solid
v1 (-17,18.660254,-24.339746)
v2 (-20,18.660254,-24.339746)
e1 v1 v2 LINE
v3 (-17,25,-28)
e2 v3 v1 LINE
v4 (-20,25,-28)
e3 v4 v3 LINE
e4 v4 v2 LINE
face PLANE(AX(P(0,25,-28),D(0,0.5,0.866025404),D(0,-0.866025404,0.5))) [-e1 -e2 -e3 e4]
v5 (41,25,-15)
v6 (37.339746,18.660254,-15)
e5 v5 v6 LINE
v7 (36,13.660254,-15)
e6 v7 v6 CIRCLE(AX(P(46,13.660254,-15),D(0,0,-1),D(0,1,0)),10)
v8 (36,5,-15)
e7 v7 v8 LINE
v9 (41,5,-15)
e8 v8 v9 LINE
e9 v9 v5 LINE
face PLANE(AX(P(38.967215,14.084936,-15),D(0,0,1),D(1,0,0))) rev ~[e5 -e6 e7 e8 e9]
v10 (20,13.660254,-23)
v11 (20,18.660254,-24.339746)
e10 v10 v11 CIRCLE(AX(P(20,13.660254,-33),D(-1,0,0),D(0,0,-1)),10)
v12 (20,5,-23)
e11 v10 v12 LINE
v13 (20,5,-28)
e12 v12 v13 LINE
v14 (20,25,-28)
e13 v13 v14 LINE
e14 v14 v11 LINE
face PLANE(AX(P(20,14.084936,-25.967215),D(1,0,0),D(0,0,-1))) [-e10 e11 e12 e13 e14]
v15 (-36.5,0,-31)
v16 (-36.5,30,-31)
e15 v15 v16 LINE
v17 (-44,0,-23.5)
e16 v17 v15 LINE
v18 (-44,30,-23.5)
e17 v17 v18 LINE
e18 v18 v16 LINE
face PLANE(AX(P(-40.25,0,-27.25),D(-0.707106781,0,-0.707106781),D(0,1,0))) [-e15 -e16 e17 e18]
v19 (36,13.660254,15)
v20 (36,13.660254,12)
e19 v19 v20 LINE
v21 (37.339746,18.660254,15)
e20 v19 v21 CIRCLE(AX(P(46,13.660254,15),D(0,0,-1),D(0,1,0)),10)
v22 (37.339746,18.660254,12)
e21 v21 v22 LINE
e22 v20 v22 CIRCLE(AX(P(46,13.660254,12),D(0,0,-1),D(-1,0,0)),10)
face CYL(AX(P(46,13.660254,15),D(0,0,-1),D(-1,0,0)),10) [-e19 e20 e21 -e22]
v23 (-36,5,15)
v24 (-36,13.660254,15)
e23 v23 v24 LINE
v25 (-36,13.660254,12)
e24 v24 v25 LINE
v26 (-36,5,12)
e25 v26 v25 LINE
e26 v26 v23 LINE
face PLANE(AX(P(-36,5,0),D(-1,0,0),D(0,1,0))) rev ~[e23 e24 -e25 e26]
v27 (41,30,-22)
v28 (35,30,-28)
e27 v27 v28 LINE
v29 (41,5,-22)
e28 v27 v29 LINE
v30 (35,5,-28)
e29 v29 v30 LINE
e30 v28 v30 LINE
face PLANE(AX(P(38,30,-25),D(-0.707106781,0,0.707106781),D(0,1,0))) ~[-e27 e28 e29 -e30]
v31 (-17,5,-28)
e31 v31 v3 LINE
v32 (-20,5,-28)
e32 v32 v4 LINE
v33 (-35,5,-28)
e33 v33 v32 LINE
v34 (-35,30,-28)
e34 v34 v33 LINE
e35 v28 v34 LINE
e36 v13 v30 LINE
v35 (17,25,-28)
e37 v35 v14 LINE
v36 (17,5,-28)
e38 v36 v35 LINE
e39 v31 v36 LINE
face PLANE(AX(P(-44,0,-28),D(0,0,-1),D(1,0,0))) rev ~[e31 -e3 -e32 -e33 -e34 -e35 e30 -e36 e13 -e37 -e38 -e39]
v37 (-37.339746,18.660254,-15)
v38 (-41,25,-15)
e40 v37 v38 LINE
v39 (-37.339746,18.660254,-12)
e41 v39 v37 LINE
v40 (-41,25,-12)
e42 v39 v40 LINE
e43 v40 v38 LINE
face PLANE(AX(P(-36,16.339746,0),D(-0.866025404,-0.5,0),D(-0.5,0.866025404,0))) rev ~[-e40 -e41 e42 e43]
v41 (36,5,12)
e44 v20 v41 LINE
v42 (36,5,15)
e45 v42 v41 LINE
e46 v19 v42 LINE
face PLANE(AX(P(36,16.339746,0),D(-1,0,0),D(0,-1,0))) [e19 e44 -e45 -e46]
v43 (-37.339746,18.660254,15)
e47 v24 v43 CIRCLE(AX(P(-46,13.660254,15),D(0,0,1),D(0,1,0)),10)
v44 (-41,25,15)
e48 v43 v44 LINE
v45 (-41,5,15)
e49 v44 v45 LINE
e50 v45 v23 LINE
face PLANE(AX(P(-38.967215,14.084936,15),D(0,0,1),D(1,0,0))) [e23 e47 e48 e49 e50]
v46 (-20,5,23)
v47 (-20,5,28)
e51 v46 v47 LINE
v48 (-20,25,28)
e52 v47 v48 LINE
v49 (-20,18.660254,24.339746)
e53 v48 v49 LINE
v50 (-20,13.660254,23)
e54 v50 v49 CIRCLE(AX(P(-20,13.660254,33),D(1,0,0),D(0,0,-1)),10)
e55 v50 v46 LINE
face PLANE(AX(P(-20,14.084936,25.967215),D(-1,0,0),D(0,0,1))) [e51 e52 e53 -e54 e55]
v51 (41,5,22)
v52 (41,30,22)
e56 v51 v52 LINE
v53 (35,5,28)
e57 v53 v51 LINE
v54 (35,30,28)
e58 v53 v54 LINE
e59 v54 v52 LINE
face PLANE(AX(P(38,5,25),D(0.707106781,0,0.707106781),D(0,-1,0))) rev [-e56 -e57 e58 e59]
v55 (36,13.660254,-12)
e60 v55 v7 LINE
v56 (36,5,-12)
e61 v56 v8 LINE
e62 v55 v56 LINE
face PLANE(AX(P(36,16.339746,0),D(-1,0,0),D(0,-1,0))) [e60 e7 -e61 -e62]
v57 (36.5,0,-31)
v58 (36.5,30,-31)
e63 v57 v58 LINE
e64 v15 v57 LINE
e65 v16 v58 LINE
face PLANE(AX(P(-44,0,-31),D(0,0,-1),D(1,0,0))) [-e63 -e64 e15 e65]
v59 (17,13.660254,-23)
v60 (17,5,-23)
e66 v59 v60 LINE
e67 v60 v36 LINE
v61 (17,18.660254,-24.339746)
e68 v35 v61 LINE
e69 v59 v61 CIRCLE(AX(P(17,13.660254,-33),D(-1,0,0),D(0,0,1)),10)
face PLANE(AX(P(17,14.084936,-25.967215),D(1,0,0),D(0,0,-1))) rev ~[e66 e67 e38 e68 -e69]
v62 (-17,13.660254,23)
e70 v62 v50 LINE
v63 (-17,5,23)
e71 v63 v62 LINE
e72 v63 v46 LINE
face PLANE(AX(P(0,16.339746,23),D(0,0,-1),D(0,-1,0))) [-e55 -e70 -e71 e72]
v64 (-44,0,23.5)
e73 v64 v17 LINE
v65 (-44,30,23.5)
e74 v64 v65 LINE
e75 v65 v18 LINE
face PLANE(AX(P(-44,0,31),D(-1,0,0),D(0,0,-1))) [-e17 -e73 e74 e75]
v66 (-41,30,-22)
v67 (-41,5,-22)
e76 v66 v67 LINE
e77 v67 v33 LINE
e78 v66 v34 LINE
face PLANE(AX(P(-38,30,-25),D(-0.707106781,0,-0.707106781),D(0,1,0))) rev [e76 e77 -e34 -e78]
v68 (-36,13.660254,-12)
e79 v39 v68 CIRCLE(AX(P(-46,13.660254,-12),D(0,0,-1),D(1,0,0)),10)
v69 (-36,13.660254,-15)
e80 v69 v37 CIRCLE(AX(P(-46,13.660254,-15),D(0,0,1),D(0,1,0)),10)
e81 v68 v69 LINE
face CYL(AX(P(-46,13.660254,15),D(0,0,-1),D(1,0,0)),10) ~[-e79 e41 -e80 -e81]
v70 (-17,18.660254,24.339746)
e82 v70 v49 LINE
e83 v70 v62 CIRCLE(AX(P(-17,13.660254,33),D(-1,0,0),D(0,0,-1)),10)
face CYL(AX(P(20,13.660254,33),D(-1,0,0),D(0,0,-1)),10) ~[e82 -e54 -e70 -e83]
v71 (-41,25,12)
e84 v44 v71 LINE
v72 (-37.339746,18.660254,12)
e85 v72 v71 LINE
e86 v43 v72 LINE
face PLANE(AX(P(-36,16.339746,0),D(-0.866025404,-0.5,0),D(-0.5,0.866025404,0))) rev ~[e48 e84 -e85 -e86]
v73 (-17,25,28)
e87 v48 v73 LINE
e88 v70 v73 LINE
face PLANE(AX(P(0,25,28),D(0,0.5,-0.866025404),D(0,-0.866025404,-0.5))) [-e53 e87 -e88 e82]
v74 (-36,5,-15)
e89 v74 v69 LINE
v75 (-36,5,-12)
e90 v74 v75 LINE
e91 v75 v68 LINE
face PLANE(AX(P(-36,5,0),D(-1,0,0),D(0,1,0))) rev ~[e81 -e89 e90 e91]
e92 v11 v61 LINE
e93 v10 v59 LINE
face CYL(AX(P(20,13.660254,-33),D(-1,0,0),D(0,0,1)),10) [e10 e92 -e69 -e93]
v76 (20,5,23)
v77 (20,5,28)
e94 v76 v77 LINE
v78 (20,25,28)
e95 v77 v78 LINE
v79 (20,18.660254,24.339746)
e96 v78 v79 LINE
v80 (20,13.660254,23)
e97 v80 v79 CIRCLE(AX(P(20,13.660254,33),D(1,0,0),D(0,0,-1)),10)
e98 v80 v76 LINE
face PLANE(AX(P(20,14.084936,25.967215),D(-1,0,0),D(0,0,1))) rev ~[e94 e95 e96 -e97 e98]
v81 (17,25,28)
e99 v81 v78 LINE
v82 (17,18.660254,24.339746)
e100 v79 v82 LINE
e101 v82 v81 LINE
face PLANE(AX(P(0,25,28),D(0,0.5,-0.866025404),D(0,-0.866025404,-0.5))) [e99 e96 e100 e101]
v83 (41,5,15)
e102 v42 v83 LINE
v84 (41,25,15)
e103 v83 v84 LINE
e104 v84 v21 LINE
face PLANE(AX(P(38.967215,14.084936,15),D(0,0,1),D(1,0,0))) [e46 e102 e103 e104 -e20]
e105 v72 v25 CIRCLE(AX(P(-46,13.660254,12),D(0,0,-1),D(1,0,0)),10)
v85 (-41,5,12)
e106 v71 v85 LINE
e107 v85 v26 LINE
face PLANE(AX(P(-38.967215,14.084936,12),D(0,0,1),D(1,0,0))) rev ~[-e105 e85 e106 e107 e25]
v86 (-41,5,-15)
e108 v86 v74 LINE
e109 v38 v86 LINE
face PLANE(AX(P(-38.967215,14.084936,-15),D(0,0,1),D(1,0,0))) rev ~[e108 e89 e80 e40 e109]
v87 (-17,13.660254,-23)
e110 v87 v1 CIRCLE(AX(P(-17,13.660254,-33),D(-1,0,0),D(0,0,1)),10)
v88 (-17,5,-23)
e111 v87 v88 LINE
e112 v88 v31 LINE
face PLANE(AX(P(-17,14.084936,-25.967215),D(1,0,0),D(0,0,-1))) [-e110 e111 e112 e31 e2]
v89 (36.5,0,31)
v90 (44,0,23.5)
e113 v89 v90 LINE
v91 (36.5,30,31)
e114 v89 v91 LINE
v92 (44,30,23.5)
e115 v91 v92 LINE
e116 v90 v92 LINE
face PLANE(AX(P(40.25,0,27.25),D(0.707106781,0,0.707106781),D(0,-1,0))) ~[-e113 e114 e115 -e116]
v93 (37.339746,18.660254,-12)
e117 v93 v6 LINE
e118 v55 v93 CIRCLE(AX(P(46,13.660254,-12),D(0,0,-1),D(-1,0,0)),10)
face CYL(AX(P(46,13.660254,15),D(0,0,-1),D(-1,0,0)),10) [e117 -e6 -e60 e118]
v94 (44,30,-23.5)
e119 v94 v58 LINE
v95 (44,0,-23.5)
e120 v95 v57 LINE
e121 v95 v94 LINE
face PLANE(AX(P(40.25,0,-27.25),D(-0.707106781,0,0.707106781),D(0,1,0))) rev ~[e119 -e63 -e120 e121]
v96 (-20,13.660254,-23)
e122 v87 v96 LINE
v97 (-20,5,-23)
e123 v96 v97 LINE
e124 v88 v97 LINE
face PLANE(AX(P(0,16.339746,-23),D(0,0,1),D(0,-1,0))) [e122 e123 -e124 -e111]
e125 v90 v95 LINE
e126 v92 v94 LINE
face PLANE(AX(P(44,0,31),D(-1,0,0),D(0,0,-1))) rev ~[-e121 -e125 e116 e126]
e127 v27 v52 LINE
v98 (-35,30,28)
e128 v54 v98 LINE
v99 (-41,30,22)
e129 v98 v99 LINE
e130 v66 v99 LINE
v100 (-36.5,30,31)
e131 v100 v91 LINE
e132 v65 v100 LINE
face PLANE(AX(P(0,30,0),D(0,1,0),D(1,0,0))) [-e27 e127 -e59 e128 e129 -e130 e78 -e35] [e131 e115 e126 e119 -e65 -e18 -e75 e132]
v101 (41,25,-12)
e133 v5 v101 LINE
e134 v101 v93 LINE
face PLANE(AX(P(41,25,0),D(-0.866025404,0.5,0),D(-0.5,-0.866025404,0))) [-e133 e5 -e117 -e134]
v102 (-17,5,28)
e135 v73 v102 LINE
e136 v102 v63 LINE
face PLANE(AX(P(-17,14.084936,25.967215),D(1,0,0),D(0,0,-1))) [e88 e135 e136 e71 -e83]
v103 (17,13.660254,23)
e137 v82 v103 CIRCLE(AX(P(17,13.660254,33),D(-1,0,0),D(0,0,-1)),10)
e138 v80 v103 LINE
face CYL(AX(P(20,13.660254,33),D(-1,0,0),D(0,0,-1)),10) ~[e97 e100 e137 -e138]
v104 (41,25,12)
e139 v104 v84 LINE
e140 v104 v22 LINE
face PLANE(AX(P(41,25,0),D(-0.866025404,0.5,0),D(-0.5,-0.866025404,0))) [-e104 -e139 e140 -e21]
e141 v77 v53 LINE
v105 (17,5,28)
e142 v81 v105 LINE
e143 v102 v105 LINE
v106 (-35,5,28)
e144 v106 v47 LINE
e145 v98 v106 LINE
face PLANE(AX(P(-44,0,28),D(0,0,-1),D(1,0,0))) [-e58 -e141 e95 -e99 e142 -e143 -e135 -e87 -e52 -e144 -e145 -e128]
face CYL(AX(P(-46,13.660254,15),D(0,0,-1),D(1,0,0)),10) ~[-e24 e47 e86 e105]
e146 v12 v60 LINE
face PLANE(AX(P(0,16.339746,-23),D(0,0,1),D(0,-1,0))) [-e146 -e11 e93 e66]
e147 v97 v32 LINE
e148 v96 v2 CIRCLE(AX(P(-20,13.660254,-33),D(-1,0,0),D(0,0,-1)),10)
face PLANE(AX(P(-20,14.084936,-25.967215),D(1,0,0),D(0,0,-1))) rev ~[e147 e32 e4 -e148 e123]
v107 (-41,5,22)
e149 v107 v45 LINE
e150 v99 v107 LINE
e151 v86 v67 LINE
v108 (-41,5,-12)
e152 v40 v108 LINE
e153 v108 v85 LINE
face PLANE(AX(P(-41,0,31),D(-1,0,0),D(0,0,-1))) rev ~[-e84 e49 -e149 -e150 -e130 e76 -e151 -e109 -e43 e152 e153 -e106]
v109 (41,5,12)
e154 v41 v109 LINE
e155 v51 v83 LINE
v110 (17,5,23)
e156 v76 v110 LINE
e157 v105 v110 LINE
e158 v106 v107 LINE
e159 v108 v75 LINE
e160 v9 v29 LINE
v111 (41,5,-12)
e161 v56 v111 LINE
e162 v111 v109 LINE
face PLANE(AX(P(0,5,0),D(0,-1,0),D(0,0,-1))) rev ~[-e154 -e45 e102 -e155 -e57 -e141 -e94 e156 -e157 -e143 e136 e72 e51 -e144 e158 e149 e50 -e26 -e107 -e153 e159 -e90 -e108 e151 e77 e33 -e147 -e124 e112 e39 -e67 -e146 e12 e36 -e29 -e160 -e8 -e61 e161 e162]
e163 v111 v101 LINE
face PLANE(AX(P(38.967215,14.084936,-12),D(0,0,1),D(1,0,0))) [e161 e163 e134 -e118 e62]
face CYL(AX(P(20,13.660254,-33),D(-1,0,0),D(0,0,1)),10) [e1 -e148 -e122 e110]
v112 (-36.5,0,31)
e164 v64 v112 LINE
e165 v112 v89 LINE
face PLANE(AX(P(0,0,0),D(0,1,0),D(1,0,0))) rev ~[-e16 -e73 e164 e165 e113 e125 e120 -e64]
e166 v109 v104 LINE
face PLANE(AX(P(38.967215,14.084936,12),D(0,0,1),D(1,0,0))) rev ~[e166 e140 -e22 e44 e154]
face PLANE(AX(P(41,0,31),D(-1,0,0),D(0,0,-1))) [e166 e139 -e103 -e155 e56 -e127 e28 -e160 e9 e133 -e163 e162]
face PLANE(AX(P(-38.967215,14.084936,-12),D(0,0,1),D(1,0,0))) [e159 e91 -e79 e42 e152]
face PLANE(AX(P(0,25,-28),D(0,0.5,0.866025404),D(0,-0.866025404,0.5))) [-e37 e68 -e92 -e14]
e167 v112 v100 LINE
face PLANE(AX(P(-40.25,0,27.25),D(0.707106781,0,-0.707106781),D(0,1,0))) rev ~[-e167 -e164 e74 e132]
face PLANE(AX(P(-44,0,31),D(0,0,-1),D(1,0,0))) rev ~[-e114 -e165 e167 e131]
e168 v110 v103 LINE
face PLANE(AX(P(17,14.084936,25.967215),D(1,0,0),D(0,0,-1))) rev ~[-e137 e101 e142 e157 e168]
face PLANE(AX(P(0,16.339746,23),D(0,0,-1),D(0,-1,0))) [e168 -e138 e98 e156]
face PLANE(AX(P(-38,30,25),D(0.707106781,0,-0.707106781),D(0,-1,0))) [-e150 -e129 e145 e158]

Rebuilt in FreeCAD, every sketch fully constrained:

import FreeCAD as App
import Part
import Sketcher
Q = App.Units.Quantity


def edges_at(feature, points):
    """Names of the edges that pass closest to the given points."""
    edges = feature.Shape.Edges
    near = lambda p: min(range(len(edges)), key=lambda i: edges[i].distToShape(Part.Vertex(*p))[0])
    return sorted({f"Edge{near(p) + 1}" for p in points})


def faces_at(feature, points):
    """Names of the faces that lie closest to the given points."""
    faces = feature.Shape.Faces
    near = lambda p: min(range(len(faces)), key=lambda i: faces[i].distToShape(Part.Vertex(*p))[0])
    return sorted({f"Face{near(p) + 1}" for p in points})


def add_polygon(sketch, points):
    """Adds a closed chain of lines whose ends are joined by coincident constraints."""
    first, n = sketch.GeometryCount, len(points)
    for a, b in zip(points, points[1:] + points[:1]):
        sketch.addGeometry(Part.LineSegment(App.Vector(*a, 0), App.Vector(*b, 0)), False)
    for i in range(n):
        sketch.addConstraint(Sketcher.Constraint("Coincident", first + i, 2, first + (i + 1) % n, 1))

doc = App.newDocument("Part")
params = doc.addObject("Spreadsheet::Sheet", "Params")
for row, (alias, value) in enumerate([
    ("sketch1_width", "88 mm"),
    ("sketch1_height", "62 mm"),
    ("pad1_length", "30 mm"),
    ("thickness_wall", "3 mm"),
    ("sketch2_width", "82 mm"),
    ("sketch2_height", "56 mm"),
    ("pad2_length", "2 mm"),
    ("sketch3_width", "5 mm"),
    ("sketch3_height", "20 mm"),
    ("pad3_length", "30 mm"),
    ("fillet_radius", "10 mm"),
    ("sketch4_width", "5 mm"),
    ("sketch4_height", "20 mm"),
    ("pocket1_length", "24 mm"),
    ("sketch5_width", "20 mm"),
    ("sketch5_height", "5 mm"),
    ("pad4_length", "40 mm"),
    ("fillet2_radius", "10 mm"),
    ("sketch6_width", "20 mm"),
    ("sketch6_height", "5 mm"),
    ("pocket2_length", "34 mm"),
    ("chamfer_size", "6 mm"),
    ("chamfer2_size", "7.5 mm"),
], start=1):
    params.set(f"A{row}", alias)
    params.set(f"B{row}", "=" + value)
    params.setAlias(f"B{row}", alias)

body = doc.addObject("PartDesign::Body", "Body")

# Sketch on XZ plane
sketch1 = body.newObject("Sketcher::SketchObject", "Sketch")
sketch1.AttachmentSupport = (doc.getObject("XZ_Plane"), [""])
sketch1.MapMode = "FlatFace"
add_polygon(sketch1, [(-44, -31), (-44, 31), (44, 31), (44, -31)])  # lines 0-3
sketch1.addConstraint([
    Sketcher.Constraint("Vertical", 0),
    Sketcher.Constraint("Horizontal", 1),
    Sketcher.Constraint("Vertical", 2),
    Sketcher.Constraint("Horizontal", 3),
    Sketcher.Constraint("Symmetric", 0, 2, 2, 2, -1, 1),
    Sketcher.Constraint("DistanceX", 1, 1, 1, 2, 88.0),
    Sketcher.Constraint("DistanceY", 0, 1, 0, 2, 62.0),
])
sketch1.setExpression("Constraints[9]", "Params.sketch1_width")
sketch1.setExpression("Constraints[10]", "Params.sketch1_height")
pad1 = body.newObject("PartDesign::Pad", "Pad")
pad1.Profile = sketch1
pad1.setExpression("Length", "Params.pad1_length")
pad1.Reversed = True
doc.recompute()

thickness = body.newObject("PartDesign::Thickness", "Thickness")
thickness.Base = (pad1, faces_at(pad1, [(0, 30, 0)]))
thickness.setExpression("Value", "Params.thickness_wall")
thickness.Reversed = True
thickness.Join = "Intersection"

# Sketch on XZ plane
sketch2 = body.newObject("Sketcher::SketchObject", "Sketch001")
sketch2.AttachmentSupport = (doc.getObject("XZ_Plane"), [""])
sketch2.MapMode = "FlatFace"
sketch2.AttachmentOffset = App.Placement(App.Vector(0, 0, -3), App.Rotation())
add_polygon(sketch2, [(41, 28), (-41, 28), (-41, -28), (41, -28)])  # lines 0-3
sketch2.addConstraint([
    Sketcher.Constraint("Horizontal", 0),
    Sketcher.Constraint("Vertical", 1),
    Sketcher.Constraint("Horizontal", 2),
    Sketcher.Constraint("Vertical", 3),
    Sketcher.Constraint("Symmetric", 0, 2, 2, 2, -1, 1),
    Sketcher.Constraint("DistanceX", 0, 2, 0, 1, 82.0),
    Sketcher.Constraint("DistanceY", 1, 2, 1, 1, 56.0),
])
sketch2.setExpression("Constraints[9]", "Params.sketch2_width")
sketch2.setExpression("Constraints[10]", "Params.sketch2_height")
pad2 = body.newObject("PartDesign::Pad", "Pad001")
pad2.Profile = sketch2
pad2.setExpression("Length", "Params.pad2_length")
pad2.Reversed = True

# Sketch on XY plane
sketch3 = body.newObject("Sketcher::SketchObject", "Sketch002")
sketch3.AttachmentSupport = (doc.getObject("XY_Plane"), [""])
sketch3.MapMode = "FlatFace"
add_polygon(sketch3, [(-41, 25), (-41, 5), (-36, 5), (-36, 16)])  # lines 0-3
add_polygon(sketch3, [(36, 5), (41, 5), (41, 25), (36, 16)])  # lines 4-7
sketch3.addConstraint([
    Sketcher.Constraint("Vertical", 0),
    Sketcher.Constraint("Horizontal", 1),
    Sketcher.Constraint("Vertical", 2),
    Sketcher.Constraint("Horizontal", 4),
    Sketcher.Constraint("Vertical", 5),
    Sketcher.Constraint("Vertical", 7),
    Sketcher.Constraint("Symmetric", 0, 2, 4, 2, -2),
    Sketcher.Constraint("Symmetric", 2, 2, 6, 2, -2),
    Sketcher.Constraint("Horizontal", 3, 2, 5, 2),
    Sketcher.Constraint("DistanceX", 1, 1, 1, 2, 5.0),
    Sketcher.Constraint("DistanceY", 0, 2, 0, 1, 20.0),
    Sketcher.Constraint("Angle", 3, Q("120 deg")),
    Sketcher.Constraint("DistanceX", 0, 2, -1, 1, 41.0),
    Sketcher.Constraint("DistanceY", -1, 1, 0, 2, 5.0),
])
sketch3.setExpression("Constraints[17]", "Params.sketch3_width")
sketch3.setExpression("Constraints[18]", "Params.sketch3_height")
pad3 = body.newObject("PartDesign::Pad", "Pad002")
pad3.Profile = sketch3
pad3.setExpression("Length", "Params.pad3_length")
pad3.Midplane = True
doc.recompute()

fillet = body.newObject("PartDesign::Fillet", "Fillet")
fillet.Base = (pad3, edges_at(pad3, [(-36, 16.34, 0), (36, 16.34, 0)]))
fillet.setExpression("Radius", "Params.fillet_radius")

# Sketch on XY plane
sketch4 = body.newObject("Sketcher::SketchObject", "Sketch003")
sketch4.AttachmentSupport = (doc.getObject("XY_Plane"), [""])
sketch4.MapMode = "FlatFace"
add_polygon(sketch4, [(36, 5), (41, 5), (41, 25), (36, 16)])  # lines 0-3
add_polygon(sketch4, [(-41, 25), (-41, 5), (-36, 5), (-36, 16)])  # lines 4-7
sketch4.addConstraint([
    Sketcher.Constraint("Horizontal", 0),
    Sketcher.Constraint("Vertical", 1),
    Sketcher.Constraint("Vertical", 3),
    Sketcher.Constraint("Vertical", 4),
    Sketcher.Constraint("Horizontal", 5),
    Sketcher.Constraint("Vertical", 6),
    Sketcher.Constraint("Symmetric", 0, 2, 4, 2, -2),
    Sketcher.Constraint("Symmetric", 2, 2, 6, 2, -2),
    Sketcher.Constraint("Horizontal", 1, 2, 7, 2),
    Sketcher.Constraint("DistanceX", 0, 1, 0, 2, 5.0),
    Sketcher.Constraint("DistanceY", 1, 1, 1, 2, 20.0),
    Sketcher.Constraint("Angle", 2, Q("-120 deg")),
    Sketcher.Constraint("DistanceX", -1, 1, 0, 2, 41.0),
    Sketcher.Constraint("DistanceY", -1, 1, 0, 2, 5.0),
])
sketch4.setExpression("Constraints[17]", "Params.sketch4_width")
sketch4.setExpression("Constraints[18]", "Params.sketch4_height")
pocket1 = body.newObject("PartDesign::Pocket", "Pocket")
pocket1.Profile = sketch4
pocket1.setExpression("Length", "Params.pocket1_length")
pocket1.Midplane = True

# Sketch on YZ plane
sketch5 = body.newObject("Sketcher::SketchObject", "Sketch004")
sketch5.AttachmentSupport = (doc.getObject("YZ_Plane"), [""])
sketch5.MapMode = "FlatFace"
add_polygon(sketch5, [(16, 23), (25, 28), (5, 28), (5, 23)])  # lines 0-3
add_polygon(sketch5, [(5, -23), (5, -28), (25, -28), (16, -23)])  # lines 4-7
sketch5.addConstraint([
    Sketcher.Constraint("Horizontal", 1),
    Sketcher.Constraint("Vertical", 2),
    Sketcher.Constraint("Horizontal", 3),
    Sketcher.Constraint("Vertical", 4),
    Sketcher.Constraint("Horizontal", 5),
    Sketcher.Constraint("Horizontal", 7),
    Sketcher.Constraint("Symmetric", 1, 2, 4, 2, -1),
    Sketcher.Constraint("Symmetric", 3, 2, 6, 2, -1),
    Sketcher.Constraint("Vertical", 0, 2, 5, 2),
    Sketcher.Constraint("DistanceX", 1, 2, 1, 1, 20.0),
    Sketcher.Constraint("DistanceY", 2, 2, 2, 1, 5.0),
    Sketcher.Constraint("Angle", 0, Q("30 deg")),
    Sketcher.Constraint("DistanceX", -1, 1, 0, 2, 25.0),
    Sketcher.Constraint("DistanceY", -1, 1, 0, 2, 28.0),
])
sketch5.setExpression("Constraints[17]", "Params.sketch5_width")
sketch5.setExpression("Constraints[18]", "Params.sketch5_height")
pad4 = body.newObject("PartDesign::Pad", "Pad003")
pad4.Profile = sketch5
pad4.setExpression("Length", "Params.pad4_length")
pad4.Midplane = True
doc.recompute()

fillet2 = body.newObject("PartDesign::Fillet", "Fillet001")
fillet2.Base = (pad4, edges_at(pad4, [(0, 16.34, 23), (0, 16.34, -23)]))
fillet2.setExpression("Radius", "Params.fillet2_radius")

# Sketch on YZ plane
sketch6 = body.newObject("Sketcher::SketchObject", "Sketch005")
sketch6.AttachmentSupport = (doc.getObject("YZ_Plane"), [""])
sketch6.MapMode = "FlatFace"
add_polygon(sketch6, [(5, -23), (5, -28), (25, -28), (16, -23)])  # lines 0-3
add_polygon(sketch6, [(16, 23), (25, 28), (5, 28), (5, 23)])  # lines 4-7
sketch6.addConstraint([
    Sketcher.Constraint("Vertical", 0),
    Sketcher.Constraint("Horizontal", 1),
    Sketcher.Constraint("Horizontal", 3),
    Sketcher.Constraint("Horizontal", 5),
    Sketcher.Constraint("Vertical", 6),
    Sketcher.Constraint("Horizontal", 7),
    Sketcher.Constraint("Symmetric", 1, 2, 4, 2, -1),
    Sketcher.Constraint("Symmetric", 3, 2, 6, 2, -1),
    Sketcher.Constraint("Vertical", 2, 2, 7, 2),
    Sketcher.Constraint("DistanceX", 1, 1, 1, 2, 20.0),
    Sketcher.Constraint("DistanceY", 0, 2, 0, 1, 5.0),
    Sketcher.Constraint("Angle", 2, Q("150 deg")),
    Sketcher.Constraint("DistanceX", -1, 1, 0, 2, 5.0),
    Sketcher.Constraint("DistanceY", 0, 2, -1, 1, 28.0),
])
sketch6.setExpression("Constraints[17]", "Params.sketch6_width")
sketch6.setExpression("Constraints[18]", "Params.sketch6_height")
pocket2 = body.newObject("PartDesign::Pocket", "Pocket001")
pocket2.Profile = sketch6
pocket2.setExpression("Length", "Params.pocket2_length")
pocket2.Midplane = True
doc.recompute()

chamfer = body.newObject("PartDesign::Chamfer", "Chamfer")
chamfer.Base = (pocket2, edges_at(pocket2, [
    (-41, 17.5, -28),
    (-41, 17.5, 28),
    (41, 17.5, 28),
    (41, 17.5, -28),
]))
chamfer.setExpression("Size", "Params.chamfer_size")
doc.recompute()

chamfer2 = body.newObject("PartDesign::Chamfer", "Chamfer001")
chamfer2.Base = (chamfer, edges_at(chamfer, [
    (-44, 15, -31),
    (44, 15, -31),
    (44, 15, 31),
    (-44, 15, 31),
]))
chamfer2.setExpression("Size", "Params.chamfer2_size")

doc.recompute()
